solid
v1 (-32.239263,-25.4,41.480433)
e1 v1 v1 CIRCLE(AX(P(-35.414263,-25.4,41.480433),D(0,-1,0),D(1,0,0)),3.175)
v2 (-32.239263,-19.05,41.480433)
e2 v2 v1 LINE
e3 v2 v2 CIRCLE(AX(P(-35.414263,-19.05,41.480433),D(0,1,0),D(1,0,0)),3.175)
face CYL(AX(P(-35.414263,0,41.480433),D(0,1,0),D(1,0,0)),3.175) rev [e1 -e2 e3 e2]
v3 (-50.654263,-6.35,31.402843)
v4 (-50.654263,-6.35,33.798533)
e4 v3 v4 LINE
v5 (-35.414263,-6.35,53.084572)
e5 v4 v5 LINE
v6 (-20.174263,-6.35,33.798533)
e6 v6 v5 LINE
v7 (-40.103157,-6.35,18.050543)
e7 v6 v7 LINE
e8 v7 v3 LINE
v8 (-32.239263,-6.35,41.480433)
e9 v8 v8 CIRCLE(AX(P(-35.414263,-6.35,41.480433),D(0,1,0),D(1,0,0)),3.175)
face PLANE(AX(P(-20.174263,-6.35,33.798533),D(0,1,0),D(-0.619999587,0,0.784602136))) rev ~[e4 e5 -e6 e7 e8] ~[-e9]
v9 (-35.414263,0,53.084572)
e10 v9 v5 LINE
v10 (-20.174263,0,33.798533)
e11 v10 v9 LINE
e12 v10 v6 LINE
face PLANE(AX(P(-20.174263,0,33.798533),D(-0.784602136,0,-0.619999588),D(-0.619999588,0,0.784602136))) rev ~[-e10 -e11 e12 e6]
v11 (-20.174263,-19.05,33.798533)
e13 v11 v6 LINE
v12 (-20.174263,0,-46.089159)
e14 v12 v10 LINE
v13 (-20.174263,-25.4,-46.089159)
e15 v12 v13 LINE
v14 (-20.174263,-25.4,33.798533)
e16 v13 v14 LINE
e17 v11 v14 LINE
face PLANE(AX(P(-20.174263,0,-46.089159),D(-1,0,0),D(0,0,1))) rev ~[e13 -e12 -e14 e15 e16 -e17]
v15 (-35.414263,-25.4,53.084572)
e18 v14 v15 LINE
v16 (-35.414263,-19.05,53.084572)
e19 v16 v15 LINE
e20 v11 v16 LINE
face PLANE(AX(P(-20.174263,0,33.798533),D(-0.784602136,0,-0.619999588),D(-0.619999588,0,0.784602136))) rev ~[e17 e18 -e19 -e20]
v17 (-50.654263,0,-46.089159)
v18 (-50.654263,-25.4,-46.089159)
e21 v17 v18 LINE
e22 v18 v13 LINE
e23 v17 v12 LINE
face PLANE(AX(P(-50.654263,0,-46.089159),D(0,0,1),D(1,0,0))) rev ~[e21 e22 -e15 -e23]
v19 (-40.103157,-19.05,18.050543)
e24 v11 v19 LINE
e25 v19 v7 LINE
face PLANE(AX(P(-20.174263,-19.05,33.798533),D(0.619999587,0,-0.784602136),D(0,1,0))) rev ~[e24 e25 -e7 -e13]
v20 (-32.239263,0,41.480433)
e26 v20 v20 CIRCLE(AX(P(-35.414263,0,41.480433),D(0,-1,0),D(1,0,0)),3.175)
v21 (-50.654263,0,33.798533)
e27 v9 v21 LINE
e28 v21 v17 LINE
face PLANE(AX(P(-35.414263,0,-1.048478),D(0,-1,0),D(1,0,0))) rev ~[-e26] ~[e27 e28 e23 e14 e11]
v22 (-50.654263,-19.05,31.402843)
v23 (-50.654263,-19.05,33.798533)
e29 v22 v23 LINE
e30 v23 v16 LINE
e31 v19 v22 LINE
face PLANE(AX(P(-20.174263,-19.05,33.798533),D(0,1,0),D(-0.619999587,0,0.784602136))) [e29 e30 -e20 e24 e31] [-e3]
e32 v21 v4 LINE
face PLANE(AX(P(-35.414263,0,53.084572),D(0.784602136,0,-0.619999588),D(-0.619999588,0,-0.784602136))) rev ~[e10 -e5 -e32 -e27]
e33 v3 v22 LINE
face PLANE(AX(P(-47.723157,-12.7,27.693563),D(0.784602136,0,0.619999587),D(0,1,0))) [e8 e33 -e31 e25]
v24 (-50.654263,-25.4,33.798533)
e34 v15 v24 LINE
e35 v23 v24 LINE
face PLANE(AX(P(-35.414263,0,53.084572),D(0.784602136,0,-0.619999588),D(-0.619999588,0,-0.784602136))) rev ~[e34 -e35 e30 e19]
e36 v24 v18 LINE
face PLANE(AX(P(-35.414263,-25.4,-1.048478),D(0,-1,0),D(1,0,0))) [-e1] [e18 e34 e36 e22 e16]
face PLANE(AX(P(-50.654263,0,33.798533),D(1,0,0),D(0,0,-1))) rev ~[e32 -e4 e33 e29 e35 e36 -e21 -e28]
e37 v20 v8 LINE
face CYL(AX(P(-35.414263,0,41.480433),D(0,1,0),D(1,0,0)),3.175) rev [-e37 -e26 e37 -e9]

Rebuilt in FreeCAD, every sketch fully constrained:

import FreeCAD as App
import Part
import Sketcher

V = App.Vector
Q = App.Units.Quantity

doc = App.newDocument("Part")
body = doc.addObject("PartDesign::Body", "Body")

# Sketch on XZ plane
sketch1 = body.newObject("Sketcher::SketchObject", "Sketch")
sketch1.AttachmentSupport = (doc.getObject("XZ_Plane"), [""])
sketch1.MapMode = "FlatFace"
sketch1.addGeometry(Part.LineSegment(V(-20.2, 33.8, 0), V(-35.4, 53.1, 0)), False)
sketch1.addGeometry(Part.LineSegment(V(-35.4, 53.1, 0), V(-50.7, 33.8, 0)), False)
sketch1.addGeometry(Part.LineSegment(V(-50.7, 33.8, 0), V(-50.7, -46.1, 0)), False)
sketch1.addGeometry(Part.LineSegment(V(-50.7, -46.1, 0), V(-20.2, -46.1, 0)), False)
sketch1.addGeometry(Part.LineSegment(V(-20.2, -46.1, 0), V(-20.2, 33.8, 0)), False)
sketch1.addGeometry(Part.Circle(V(-35.4, 41.5, 0), V(0, 0, 1), 3.2), False)
sketch1.addConstraint(Sketcher.Constraint("Coincident", 0, 2, 1, 1))
sketch1.addConstraint(Sketcher.Constraint("Coincident", 1, 2, 2, 1))
sketch1.addConstraint(Sketcher.Constraint("Coincident", 2, 2, 3, 1))
sketch1.addConstraint(Sketcher.Constraint("Coincident", 3, 2, 4, 1))
sketch1.addConstraint(Sketcher.Constraint("Coincident", 4, 2, 0, 1))
sketch1.addConstraint(Sketcher.Constraint("Vertical", 2))
sketch1.addConstraint(Sketcher.Constraint("Horizontal", 3))
sketch1.addConstraint(Sketcher.Constraint("Vertical", 4))
sketch1.addConstraint(Sketcher.Constraint("Horizontal", 1, 2, 4, 2))
sketch1.addConstraint(Sketcher.Constraint("Vertical", 5, 3, 0, 2))
sketch1.addConstraint(Sketcher.Constraint("Equal", 0, 1))
sketch1.addConstraint(Sketcher.Constraint("Diameter", 5, Q("0.25 in")))
sketch1.addConstraint(Sketcher.Constraint("DistanceX", 3, 1, 3, 2, Q("1.2 in")))
sketch1.addConstraint(Sketcher.Constraint("DistanceY", 2, 2, 2, 1, 79.887692))
sketch1.addConstraint(Sketcher.Constraint("DistanceY", 1, 2, 5, 3, 7.681901))
sketch1.addConstraint(Sketcher.Constraint("Distance", 0, 24.580662))
sketch1.addConstraint(Sketcher.Constraint("DistanceY", 2, 2, -1, 1, 46.089159))
sketch1.addConstraint(Sketcher.Constraint("DistanceX", 5, 3, -1, 1, 35.414263))
pad1 = body.newObject("PartDesign::Pad", "Pad")
pad1.Profile = sketch1
pad1.Length = Q("1 in")

# Sketch on an angled plane
sketch2 = body.newObject("Sketcher::SketchObject", "Sketch001")
sketch2.Placement = App.Placement(V(4.022111, 0, 3.178308), App.Rotation(V(0, 1, 0), V(-0.619999587, 0, 0.784602136), V(0.784602136, 0, 0.619999587), "ZXY"))
sketch2.addGeometry(Part.LineSegment(V(-19, 64, 0), V(-19, 39, 0)), False)
sketch2.addGeometry(Part.LineSegment(V(-19, 39, 0), V(-6, 39, 0)), False)
sketch2.addGeometry(Part.LineSegment(V(-6, 39, 0), V(-6, 64, 0)), False)
sketch2.addGeometry(Part.LineSegment(V(-6, 64, 0), V(-19, 64, 0)), False)
sketch2.addConstraint(Sketcher.Constraint("Coincident", 0, 2, 1, 1))
sketch2.addConstraint(Sketcher.Constraint("Coincident", 1, 2, 2, 1))
sketch2.addConstraint(Sketcher.Constraint("Coincident", 2, 2, 3, 1))
sketch2.addConstraint(Sketcher.Constraint("Coincident", 3, 2, 0, 1))
sketch2.addConstraint(Sketcher.Constraint("Vertical", 0))
sketch2.addConstraint(Sketcher.Constraint("Horizontal", 1))
sketch2.addConstraint(Sketcher.Constraint("Vertical", 2))
sketch2.addConstraint(Sketcher.Constraint("Horizontal", 3))
sketch2.addConstraint(Sketcher.Constraint("DistanceX", 1, 1, 1, 2, Q("0.5 in")))
sketch2.addConstraint(Sketcher.Constraint("DistanceX", 0, 2, -1, 1, Q("0.75 in")))
sketch2.addConstraint(Sketcher.Constraint("DistanceY", 0, 2, 0, 1, 24.580662))
sketch2.addConstraint(Sketcher.Constraint("DistanceY", -1, 1, 0, 2, 39.026436))
pocket1 = body.newObject("PartDesign::Pocket", "Pocket")
pocket1.Profile = sketch2
pocket1.Length = Q("1 in")

doc.recompute()
